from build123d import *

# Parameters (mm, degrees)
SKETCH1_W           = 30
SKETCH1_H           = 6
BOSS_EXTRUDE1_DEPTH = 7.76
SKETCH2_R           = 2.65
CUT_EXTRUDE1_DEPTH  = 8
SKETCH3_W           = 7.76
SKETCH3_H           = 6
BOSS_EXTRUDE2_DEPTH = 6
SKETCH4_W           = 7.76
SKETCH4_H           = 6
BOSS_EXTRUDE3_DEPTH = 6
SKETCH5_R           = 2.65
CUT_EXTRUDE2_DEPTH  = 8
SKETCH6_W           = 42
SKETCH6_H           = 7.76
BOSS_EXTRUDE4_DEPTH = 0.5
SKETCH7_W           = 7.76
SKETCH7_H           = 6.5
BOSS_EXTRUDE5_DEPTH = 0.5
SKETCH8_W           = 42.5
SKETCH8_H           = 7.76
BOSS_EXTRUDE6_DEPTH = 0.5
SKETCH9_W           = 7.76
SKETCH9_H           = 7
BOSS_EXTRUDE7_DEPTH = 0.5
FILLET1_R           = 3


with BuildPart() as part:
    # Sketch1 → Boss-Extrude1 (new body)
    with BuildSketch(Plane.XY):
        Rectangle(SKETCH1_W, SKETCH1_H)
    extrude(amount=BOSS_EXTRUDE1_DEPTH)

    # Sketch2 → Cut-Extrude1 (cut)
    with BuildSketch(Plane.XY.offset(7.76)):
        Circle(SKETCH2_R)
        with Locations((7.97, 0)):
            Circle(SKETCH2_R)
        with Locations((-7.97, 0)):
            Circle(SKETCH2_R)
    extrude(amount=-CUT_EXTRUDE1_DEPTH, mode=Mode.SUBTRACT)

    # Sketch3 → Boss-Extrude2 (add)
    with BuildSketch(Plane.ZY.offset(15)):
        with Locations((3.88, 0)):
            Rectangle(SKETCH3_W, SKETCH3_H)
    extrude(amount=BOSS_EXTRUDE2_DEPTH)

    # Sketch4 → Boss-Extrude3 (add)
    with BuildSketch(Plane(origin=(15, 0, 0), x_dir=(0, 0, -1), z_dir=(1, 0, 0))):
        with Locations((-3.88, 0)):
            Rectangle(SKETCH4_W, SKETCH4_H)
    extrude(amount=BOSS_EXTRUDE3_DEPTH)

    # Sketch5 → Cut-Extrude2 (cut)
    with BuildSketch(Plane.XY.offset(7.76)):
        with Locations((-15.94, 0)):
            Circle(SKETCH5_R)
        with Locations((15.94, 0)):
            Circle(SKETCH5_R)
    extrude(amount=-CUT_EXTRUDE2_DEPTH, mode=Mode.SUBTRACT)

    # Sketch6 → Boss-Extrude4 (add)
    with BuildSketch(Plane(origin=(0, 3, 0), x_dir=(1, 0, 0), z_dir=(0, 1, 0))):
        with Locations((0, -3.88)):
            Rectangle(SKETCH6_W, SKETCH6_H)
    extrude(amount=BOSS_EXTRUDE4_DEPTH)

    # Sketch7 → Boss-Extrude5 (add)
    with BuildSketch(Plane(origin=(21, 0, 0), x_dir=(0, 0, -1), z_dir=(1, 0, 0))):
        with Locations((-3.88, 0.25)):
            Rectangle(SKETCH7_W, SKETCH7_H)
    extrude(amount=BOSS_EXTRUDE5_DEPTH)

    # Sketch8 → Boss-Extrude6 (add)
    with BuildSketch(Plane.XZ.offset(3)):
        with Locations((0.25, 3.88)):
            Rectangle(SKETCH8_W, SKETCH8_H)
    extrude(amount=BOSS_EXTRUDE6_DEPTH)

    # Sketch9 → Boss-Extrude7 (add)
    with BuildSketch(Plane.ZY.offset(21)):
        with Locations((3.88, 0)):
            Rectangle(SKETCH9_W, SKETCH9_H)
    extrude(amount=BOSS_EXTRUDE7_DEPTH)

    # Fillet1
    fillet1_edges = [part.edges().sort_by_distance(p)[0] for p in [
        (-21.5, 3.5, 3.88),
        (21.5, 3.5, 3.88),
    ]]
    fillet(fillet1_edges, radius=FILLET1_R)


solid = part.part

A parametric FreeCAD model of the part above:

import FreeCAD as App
import Part
import Sketcher
from FreeCAD import Vector
Q = App.Units.Quantity


def edges_at(feature, points):
    """Names of the edges that pass closest to the given points."""
    edges = feature.Shape.Edges
    near = lambda p: min(range(len(edges)), key=lambda i: edges[i].distToShape(Part.Vertex(*p))[0])
    return sorted({f"Edge{near(p) + 1}" for p in points})

doc = App.newDocument("Part")
body = doc.addObject("PartDesign::Body", "Body")

# Sketch on XY plane
sketch1 = body.newObject("Sketcher::SketchObject", "Sketch")
sketch1.AttachmentSupport = (doc.getObject("XY_Plane"), [""])
sketch1.MapMode = "FlatFace"
sketch1.addGeometry(Part.LineSegment(Vector(-15, 3, 0), Vector(-15, -3, 0)), False)
sketch1.addGeometry(Part.LineSegment(Vector(-15, -3, 0), Vector(15, -3, 0)), False)
sketch1.addGeometry(Part.LineSegment(Vector(15, -3, 0), Vector(15, 3, 0)), False)
sketch1.addGeometry(Part.LineSegment(Vector(15, 3, 0), Vector(-15, 3, 0)), False)
sketch1.addConstraint(Sketcher.Constraint("Coincident", 0, 2, 1, 1))
sketch1.addConstraint(Sketcher.Constraint("Coincident", 1, 2, 2, 1))
sketch1.addConstraint(Sketcher.Constraint("Coincident", 2, 2, 3, 1))
sketch1.addConstraint(Sketcher.Constraint("Coincident", 3, 2, 0, 1))
sketch1.addConstraint(Sketcher.Constraint("Vertical", 0))
sketch1.addConstraint(Sketcher.Constraint("Horizontal", 1))
sketch1.addConstraint(Sketcher.Constraint("Vertical", 2))
sketch1.addConstraint(Sketcher.Constraint("Horizontal", 3))
sketch1.addConstraint(Sketcher.Constraint("Symmetric", 0, 2, 2, 2, -1, 1))
sketch1.addConstraint(Sketcher.Constraint("DistanceX", 1, 1, 1, 2, Q("30 mm")))
sketch1.addConstraint(Sketcher.Constraint("DistanceY", 0, 2, 0, 1, Q("6 mm")))
pad1 = body.newObject("PartDesign::Pad", "Pad")
pad1.Profile = sketch1
pad1.Length = 7.76

# Sketch on XY plane
sketch2 = body.newObject("Sketcher::SketchObject", "Sketch001")
sketch2.AttachmentSupport = (doc.getObject("XY_Plane"), [""])
sketch2.MapMode = "FlatFace"
sketch2.AttachmentOffset = App.Placement(Vector(0, 0, 7.76), App.Rotation())
sketch2.addGeometry(Part.Circle(Vector(0, 0, 0), Vector(0, 0, 1), 2.6), False)
sketch2.addGeometry(Part.Circle(Vector(8, 0, 0), Vector(0, 0, 1), 2.6), False)
sketch2.addGeometry(Part.Circle(Vector(-8, 0, 0), Vector(0, 0, 1), 2.6), False)
sketch2.addConstraint(Sketcher.Constraint("Coincident", 0, 3, -1, 1))
sketch2.addConstraint(Sketcher.Constraint("Equal", 0, 1))
sketch2.addConstraint(Sketcher.Constraint("Equal", 1, 2))
sketch2.addConstraint(Sketcher.Constraint("Symmetric", 1, 3, 2, 3, -1, 1))
sketch2.addConstraint(Sketcher.Constraint("PointOnObject", 1, 3, -1))
sketch2.addConstraint(Sketcher.Constraint("Diameter", 0, Q("5.3 mm")))
sketch2.addConstraint(Sketcher.Constraint("DistanceX", -1, 1, 1, 3, Q("7.97 mm")))
pocket1 = body.newObject("PartDesign::Pocket", "Pocket")
pocket1.Profile = sketch2
pocket1.Length = 8

# Sketch on YZ plane
sketch3 = body.newObject("Sketcher::SketchObject", "Sketch002")
sketch3.AttachmentSupport = (doc.getObject("YZ_Plane"), [""])
sketch3.MapMode = "FlatFace"
sketch3.AttachmentOffset = App.Placement(Vector(0, 0, -15), App.Rotation())
sketch3.addGeometry(Part.LineSegment(Vector(3, 0, 0), Vector(-3, 0, 0)), False)
sketch3.addGeometry(Part.LineSegment(Vector(-3, 0, 0), Vector(-3, 8, 0)), False)
sketch3.addGeometry(Part.LineSegment(Vector(-3, 8, 0), Vector(3, 8, 0)), False)
sketch3.addGeometry(Part.LineSegment(Vector(3, 8, 0), Vector(3, 0, 0)), False)
sketch3.addConstraint(Sketcher.Constraint("Coincident", 0, 2, 1, 1))
sketch3.addConstraint(Sketcher.Constraint("Coincident", 1, 2, 2, 1))
sketch3.addConstraint(Sketcher.Constraint("Coincident", 2, 2, 3, 1))
sketch3.addConstraint(Sketcher.Constraint("Coincident", 3, 2, 0, 1))
sketch3.addConstraint(Sketcher.Constraint("Horizontal", 0))
sketch3.addConstraint(Sketcher.Constraint("Vertical", 1))
sketch3.addConstraint(Sketcher.Constraint("Horizontal", 2))
sketch3.addConstraint(Sketcher.Constraint("Vertical", 3))
sketch3.addConstraint(Sketcher.Constraint("Symmetric", 0, 2, 3, 2, -1, 1))
sketch3.addConstraint(Sketcher.Constraint("DistanceX", 0, 2, 0, 1, Q("6 mm")))
sketch3.addConstraint(Sketcher.Constraint("DistanceY", 1, 1, 1, 2, Q("7.76 mm")))
pad2 = body.newObject("PartDesign::Pad", "Pad001")
pad2.Profile = sketch3
pad2.Length = 6
pad2.Reversed = True

# Sketch on YZ plane
sketch4 = body.newObject("Sketcher::SketchObject", "Sketch003")
sketch4.AttachmentSupport = (doc.getObject("YZ_Plane"), [""])
sketch4.MapMode = "FlatFace"
sketch4.AttachmentOffset = App.Placement(Vector(0, 0, 15), App.Rotation())
sketch4.addGeometry(Part.LineSegment(Vector(3, 8, 0), Vector(-3, 8, 0)), False)
sketch4.addGeometry(Part.LineSegment(Vector(-3, 8, 0), Vector(-3, 0, 0)), False)
sketch4.addGeometry(Part.LineSegment(Vector(-3, 0, 0), Vector(3, 0, 0)), False)
sketch4.addGeometry(Part.LineSegment(Vector(3, 0, 0), Vector(3, 8, 0)), False)
sketch4.addConstraint(Sketcher.Constraint("Coincident", 0, 2, 1, 1))
sketch4.addConstraint(Sketcher.Constraint("Coincident", 1, 2, 2, 1))
sketch4.addConstraint(Sketcher.Constraint("Coincident", 2, 2, 3, 1))
sketch4.addConstraint(Sketcher.Constraint("Coincident", 3, 2, 0, 1))
sketch4.addConstraint(Sketcher.Constraint("Horizontal", 0))
sketch4.addConstraint(Sketcher.Constraint("Vertical", 1))
sketch4.addConstraint(Sketcher.Constraint("Horizontal", 2))
sketch4.addConstraint(Sketcher.Constraint("Vertical", 3))
sketch4.addConstraint(Sketcher.Constraint("Symmetric", 1, 2, 2, 2, -1, 1))
sketch4.addConstraint(Sketcher.Constraint("DistanceX", 0, 2, 0, 1, Q("6 mm")))
sketch4.addConstraint(Sketcher.Constraint("DistanceY", 1, 2, 1, 1, Q("7.76 mm")))
pad3 = body.newObject("PartDesign::Pad", "Pad002")
pad3.Profile = sketch4
pad3.Length = 6

# Sketch on XY plane
sketch5 = body.newObject("Sketcher::SketchObject", "Sketch004")
sketch5.AttachmentSupport = (doc.getObject("XY_Plane"), [""])
sketch5.MapMode = "FlatFace"
sketch5.AttachmentOffset = App.Placement(Vector(0, 0, 7.76), App.Rotation())
sketch5.addGeometry(Part.Circle(Vector(-15.9, 0, 0), Vector(0, 0, 1), 2.6), False)
sketch5.addGeometry(Part.Circle(Vector(15.9, 0, 0), Vector(0, 0, 1), 2.6), False)
sketch5.addConstraint(Sketcher.Constraint("Equal", 0, 1))
sketch5.addConstraint(Sketcher.Constraint("Symmetric", 0, 3, 1, 3, -1, 1))
sketch5.addConstraint(Sketcher.Constraint("PointOnObject", 0, 3, -1))
sketch5.addConstraint(Sketcher.Constraint("Diameter", 0, Q("5.3 mm")))
sketch5.addConstraint(Sketcher.Constraint("DistanceX", 0, 3, -1, 1, Q("15.94 mm")))
pocket2 = body.newObject("PartDesign::Pocket", "Pocket001")
pocket2.Profile = sketch5
pocket2.Length = 8

# Sketch on XZ plane
sketch6 = body.newObject("Sketcher::SketchObject", "Sketch005")
sketch6.AttachmentSupport = (doc.getObject("XZ_Plane"), [""])
sketch6.MapMode = "FlatFace"
sketch6.AttachmentOffset = App.Placement(Vector(0, 0, -3), App.Rotation())
sketch6.addGeometry(Part.LineSegment(Vector(-21, 0, 0), Vector(-21, 8, 0)), False)
sketch6.addGeometry(Part.LineSegment(Vector(-21, 8, 0), Vector(21, 8, 0)), False)
sketch6.addGeometry(Part.LineSegment(Vector(21, 8, 0), Vector(21, 0, 0)), False)
sketch6.addGeometry(Part.LineSegment(Vector(21, 0, 0), Vector(-21, 0, 0)), False)
sketch6.addConstraint(Sketcher.Constraint("Coincident", 0, 2, 1, 1))
sketch6.addConstraint(Sketcher.Constraint("Coincident", 1, 2, 2, 1))
sketch6.addConstraint(Sketcher.Constraint("Coincident", 2, 2, 3, 1))
sketch6.addConstraint(Sketcher.Constraint("Coincident", 3, 2, 0, 1))
sketch6.addConstraint(Sketcher.Constraint("Vertical", 0))
sketch6.addConstraint(Sketcher.Constraint("Horizontal", 1))
sketch6.addConstraint(Sketcher.Constraint("Vertical", 2))
sketch6.addConstraint(Sketcher.Constraint("Horizontal", 3))
sketch6.addConstraint(Sketcher.Constraint("Symmetric", 2, 2, 3, 2, -1, 1))
sketch6.addConstraint(Sketcher.Constraint("DistanceX", 1, 1, 1, 2, Q("42 mm")))
sketch6.addConstraint(Sketcher.Constraint("DistanceY", 0, 1, 0, 2, Q("7.76 mm")))
pad4 = body.newObject("PartDesign::Pad", "Pad003")
pad4.Profile = sketch6
pad4.Length = 0.5
pad4.Reversed = True

# Sketch on YZ plane
sketch7 = body.newObject("Sketcher::SketchObject", "Sketch006")
sketch7.AttachmentSupport = (doc.getObject("YZ_Plane"), [""])
sketch7.MapMode = "FlatFace"
sketch7.AttachmentOffset = App.Placement(Vector(0, 0, 21), App.Rotation())
sketch7.addGeometry(Part.LineSegment(Vector(4, 8, 0), Vector(-3, 8, 0)), False)
sketch7.addGeometry(Part.LineSegment(Vector(-3, 8, 0), Vector(-3, 0, 0)), False)
sketch7.addGeometry(Part.LineSegment(Vector(-3, 0, 0), Vector(4, 0, 0)), False)
sketch7.addGeometry(Part.LineSegment(Vector(4, 0, 0), Vector(4, 8, 0)), False)
sketch7.addConstraint(Sketcher.Constraint("Coincident", 0, 2, 1, 1))
sketch7.addConstraint(Sketcher.Constraint("Coincident", 1, 2, 2, 1))
sketch7.addConstraint(Sketcher.Constraint("Coincident", 2, 2, 3, 1))
sketch7.addConstraint(Sketcher.Constraint("Coincident", 3, 2, 0, 1))
sketch7.addConstraint(Sketcher.Constraint("Horizontal", 0))
sketch7.addConstraint(Sketcher.Constraint("Vertical", 1))
sketch7.addConstraint(Sketcher.Constraint("Horizontal", 2))
sketch7.addConstraint(Sketcher.Constraint("Vertical", 3))
sketch7.addConstraint(Sketcher.Constraint("PointOnObject", 1, 2, -1))
sketch7.addConstraint(Sketcher.Constraint("DistanceX", 0, 2, 0, 1, Q("6.5 mm")))
sketch7.addConstraint(Sketcher.Constraint("DistanceX", 0, 2, -1, 1, Q("3 mm")))
sketch7.addConstraint(Sketcher.Constraint("DistanceY", 1, 2, 1, 1, Q("7.76 mm")))
pad5 = body.newObject("PartDesign::Pad", "Pad004")
pad5.Profile = sketch7
pad5.Length = 0.5

# Sketch on XZ plane
sketch8 = body.newObject("Sketcher::SketchObject", "Sketch007")
sketch8.AttachmentSupport = (doc.getObject("XZ_Plane"), [""])
sketch8.MapMode = "FlatFace"
sketch8.AttachmentOffset = App.Placement(Vector(0, 0, 3), App.Rotation())
sketch8.addGeometry(Part.LineSegment(Vector(-21, 8, 0), Vector(-21, 0, 0)), False)
sketch8.addGeometry(Part.LineSegment(Vector(-21, 0, 0), Vector(22, 0, 0)), False)
sketch8.addGeometry(Part.LineSegment(Vector(22, 0, 0), Vector(22, 8, 0)), False)
sketch8.addGeometry(Part.LineSegment(Vector(22, 8, 0), Vector(-21, 8, 0)), False)
sketch8.addConstraint(Sketcher.Constraint("Coincident", 0, 2, 1, 1))
sketch8.addConstraint(Sketcher.Constraint("Coincident", 1, 2, 2, 1))
sketch8.addConstraint(Sketcher.Constraint("Coincident", 2, 2, 3, 1))
sketch8.addConstraint(Sketcher.Constraint("Coincident", 3, 2, 0, 1))
sketch8.addConstraint(Sketcher.Constraint("Vertical", 0))
sketch8.addConstraint(Sketcher.Constraint("Horizontal", 1))
sketch8.addConstraint(Sketcher.Constraint("Vertical", 2))
sketch8.addConstraint(Sketcher.Constraint("Horizontal", 3))
sketch8.addConstraint(Sketcher.Constraint("PointOnObject", 0, 2, -1))
sketch8.addConstraint(Sketcher.Constraint("DistanceX", 1, 1, 1, 2, Q("42.5 mm")))
sketch8.addConstraint(Sketcher.Constraint("DistanceX", 0, 2, -1, 1, Q("21 mm")))
sketch8.addConstraint(Sketcher.Constraint("DistanceY", 0, 2, 0, 1, Q("7.76 mm")))
pad6 = body.newObject("PartDesign::Pad", "Pad005")
pad6.Profile = sketch8
pad6.Length = 0.5

# Sketch on YZ plane
sketch9 = body.newObject("Sketcher::SketchObject", "Sketch008")
sketch9.AttachmentSupport = (doc.getObject("YZ_Plane"), [""])
sketch9.MapMode = "FlatFace"
sketch9.AttachmentOffset = App.Placement(Vector(0, 0, -21), App.Rotation())
sketch9.addGeometry(Part.LineSegment(Vector(4, 0, 0), Vector(-4, 0, 0)), False)
sketch9.addGeometry(Part.LineSegment(Vector(-4, 0, 0), Vector(-4, 8, 0)), False)
sketch9.addGeometry(Part.LineSegment(Vector(-4, 8, 0), Vector(4, 8, 0)), False)
sketch9.addGeometry(Part.LineSegment(Vector(4, 8, 0), Vector(4, 0, 0)), False)
sketch9.addConstraint(Sketcher.Constraint("Coincident", 0, 2, 1, 1))
sketch9.addConstraint(Sketcher.Constraint("Coincident", 1, 2, 2, 1))
sketch9.addConstraint(Sketcher.Constraint("Coincident", 2, 2, 3, 1))
sketch9.addConstraint(Sketcher.Constraint("Coincident", 3, 2, 0, 1))
sketch9.addConstraint(Sketcher.Constraint("Horizontal", 0))
sketch9.addConstraint(Sketcher.Constraint("Vertical", 1))
sketch9.addConstraint(Sketcher.Constraint("Horizontal", 2))
sketch9.addConstraint(Sketcher.Constraint("Vertical", 3))
sketch9.addConstraint(Sketcher.Constraint("Symmetric", 0, 2, 3, 2, -1, 1))
sketch9.addConstraint(Sketcher.Constraint("DistanceX", 0, 2, 0, 1, Q("7 mm")))
sketch9.addConstraint(Sketcher.Constraint("DistanceY", 1, 1, 1, 2, Q("7.76 mm")))
pad7 = body.newObject("PartDesign::Pad", "Pad006")
pad7.Profile = sketch9
pad7.Length = 0.5
pad7.Reversed = True
doc.recompute()

fillet = body.newObject("PartDesign::Fillet", "Fillet")
fillet.Base = (pad7, edges_at(pad7, [(-21.5, 3.5, 3.88), (21.5, 3.5, 3.88)]))
fillet.Radius = 3

doc.recompute()
